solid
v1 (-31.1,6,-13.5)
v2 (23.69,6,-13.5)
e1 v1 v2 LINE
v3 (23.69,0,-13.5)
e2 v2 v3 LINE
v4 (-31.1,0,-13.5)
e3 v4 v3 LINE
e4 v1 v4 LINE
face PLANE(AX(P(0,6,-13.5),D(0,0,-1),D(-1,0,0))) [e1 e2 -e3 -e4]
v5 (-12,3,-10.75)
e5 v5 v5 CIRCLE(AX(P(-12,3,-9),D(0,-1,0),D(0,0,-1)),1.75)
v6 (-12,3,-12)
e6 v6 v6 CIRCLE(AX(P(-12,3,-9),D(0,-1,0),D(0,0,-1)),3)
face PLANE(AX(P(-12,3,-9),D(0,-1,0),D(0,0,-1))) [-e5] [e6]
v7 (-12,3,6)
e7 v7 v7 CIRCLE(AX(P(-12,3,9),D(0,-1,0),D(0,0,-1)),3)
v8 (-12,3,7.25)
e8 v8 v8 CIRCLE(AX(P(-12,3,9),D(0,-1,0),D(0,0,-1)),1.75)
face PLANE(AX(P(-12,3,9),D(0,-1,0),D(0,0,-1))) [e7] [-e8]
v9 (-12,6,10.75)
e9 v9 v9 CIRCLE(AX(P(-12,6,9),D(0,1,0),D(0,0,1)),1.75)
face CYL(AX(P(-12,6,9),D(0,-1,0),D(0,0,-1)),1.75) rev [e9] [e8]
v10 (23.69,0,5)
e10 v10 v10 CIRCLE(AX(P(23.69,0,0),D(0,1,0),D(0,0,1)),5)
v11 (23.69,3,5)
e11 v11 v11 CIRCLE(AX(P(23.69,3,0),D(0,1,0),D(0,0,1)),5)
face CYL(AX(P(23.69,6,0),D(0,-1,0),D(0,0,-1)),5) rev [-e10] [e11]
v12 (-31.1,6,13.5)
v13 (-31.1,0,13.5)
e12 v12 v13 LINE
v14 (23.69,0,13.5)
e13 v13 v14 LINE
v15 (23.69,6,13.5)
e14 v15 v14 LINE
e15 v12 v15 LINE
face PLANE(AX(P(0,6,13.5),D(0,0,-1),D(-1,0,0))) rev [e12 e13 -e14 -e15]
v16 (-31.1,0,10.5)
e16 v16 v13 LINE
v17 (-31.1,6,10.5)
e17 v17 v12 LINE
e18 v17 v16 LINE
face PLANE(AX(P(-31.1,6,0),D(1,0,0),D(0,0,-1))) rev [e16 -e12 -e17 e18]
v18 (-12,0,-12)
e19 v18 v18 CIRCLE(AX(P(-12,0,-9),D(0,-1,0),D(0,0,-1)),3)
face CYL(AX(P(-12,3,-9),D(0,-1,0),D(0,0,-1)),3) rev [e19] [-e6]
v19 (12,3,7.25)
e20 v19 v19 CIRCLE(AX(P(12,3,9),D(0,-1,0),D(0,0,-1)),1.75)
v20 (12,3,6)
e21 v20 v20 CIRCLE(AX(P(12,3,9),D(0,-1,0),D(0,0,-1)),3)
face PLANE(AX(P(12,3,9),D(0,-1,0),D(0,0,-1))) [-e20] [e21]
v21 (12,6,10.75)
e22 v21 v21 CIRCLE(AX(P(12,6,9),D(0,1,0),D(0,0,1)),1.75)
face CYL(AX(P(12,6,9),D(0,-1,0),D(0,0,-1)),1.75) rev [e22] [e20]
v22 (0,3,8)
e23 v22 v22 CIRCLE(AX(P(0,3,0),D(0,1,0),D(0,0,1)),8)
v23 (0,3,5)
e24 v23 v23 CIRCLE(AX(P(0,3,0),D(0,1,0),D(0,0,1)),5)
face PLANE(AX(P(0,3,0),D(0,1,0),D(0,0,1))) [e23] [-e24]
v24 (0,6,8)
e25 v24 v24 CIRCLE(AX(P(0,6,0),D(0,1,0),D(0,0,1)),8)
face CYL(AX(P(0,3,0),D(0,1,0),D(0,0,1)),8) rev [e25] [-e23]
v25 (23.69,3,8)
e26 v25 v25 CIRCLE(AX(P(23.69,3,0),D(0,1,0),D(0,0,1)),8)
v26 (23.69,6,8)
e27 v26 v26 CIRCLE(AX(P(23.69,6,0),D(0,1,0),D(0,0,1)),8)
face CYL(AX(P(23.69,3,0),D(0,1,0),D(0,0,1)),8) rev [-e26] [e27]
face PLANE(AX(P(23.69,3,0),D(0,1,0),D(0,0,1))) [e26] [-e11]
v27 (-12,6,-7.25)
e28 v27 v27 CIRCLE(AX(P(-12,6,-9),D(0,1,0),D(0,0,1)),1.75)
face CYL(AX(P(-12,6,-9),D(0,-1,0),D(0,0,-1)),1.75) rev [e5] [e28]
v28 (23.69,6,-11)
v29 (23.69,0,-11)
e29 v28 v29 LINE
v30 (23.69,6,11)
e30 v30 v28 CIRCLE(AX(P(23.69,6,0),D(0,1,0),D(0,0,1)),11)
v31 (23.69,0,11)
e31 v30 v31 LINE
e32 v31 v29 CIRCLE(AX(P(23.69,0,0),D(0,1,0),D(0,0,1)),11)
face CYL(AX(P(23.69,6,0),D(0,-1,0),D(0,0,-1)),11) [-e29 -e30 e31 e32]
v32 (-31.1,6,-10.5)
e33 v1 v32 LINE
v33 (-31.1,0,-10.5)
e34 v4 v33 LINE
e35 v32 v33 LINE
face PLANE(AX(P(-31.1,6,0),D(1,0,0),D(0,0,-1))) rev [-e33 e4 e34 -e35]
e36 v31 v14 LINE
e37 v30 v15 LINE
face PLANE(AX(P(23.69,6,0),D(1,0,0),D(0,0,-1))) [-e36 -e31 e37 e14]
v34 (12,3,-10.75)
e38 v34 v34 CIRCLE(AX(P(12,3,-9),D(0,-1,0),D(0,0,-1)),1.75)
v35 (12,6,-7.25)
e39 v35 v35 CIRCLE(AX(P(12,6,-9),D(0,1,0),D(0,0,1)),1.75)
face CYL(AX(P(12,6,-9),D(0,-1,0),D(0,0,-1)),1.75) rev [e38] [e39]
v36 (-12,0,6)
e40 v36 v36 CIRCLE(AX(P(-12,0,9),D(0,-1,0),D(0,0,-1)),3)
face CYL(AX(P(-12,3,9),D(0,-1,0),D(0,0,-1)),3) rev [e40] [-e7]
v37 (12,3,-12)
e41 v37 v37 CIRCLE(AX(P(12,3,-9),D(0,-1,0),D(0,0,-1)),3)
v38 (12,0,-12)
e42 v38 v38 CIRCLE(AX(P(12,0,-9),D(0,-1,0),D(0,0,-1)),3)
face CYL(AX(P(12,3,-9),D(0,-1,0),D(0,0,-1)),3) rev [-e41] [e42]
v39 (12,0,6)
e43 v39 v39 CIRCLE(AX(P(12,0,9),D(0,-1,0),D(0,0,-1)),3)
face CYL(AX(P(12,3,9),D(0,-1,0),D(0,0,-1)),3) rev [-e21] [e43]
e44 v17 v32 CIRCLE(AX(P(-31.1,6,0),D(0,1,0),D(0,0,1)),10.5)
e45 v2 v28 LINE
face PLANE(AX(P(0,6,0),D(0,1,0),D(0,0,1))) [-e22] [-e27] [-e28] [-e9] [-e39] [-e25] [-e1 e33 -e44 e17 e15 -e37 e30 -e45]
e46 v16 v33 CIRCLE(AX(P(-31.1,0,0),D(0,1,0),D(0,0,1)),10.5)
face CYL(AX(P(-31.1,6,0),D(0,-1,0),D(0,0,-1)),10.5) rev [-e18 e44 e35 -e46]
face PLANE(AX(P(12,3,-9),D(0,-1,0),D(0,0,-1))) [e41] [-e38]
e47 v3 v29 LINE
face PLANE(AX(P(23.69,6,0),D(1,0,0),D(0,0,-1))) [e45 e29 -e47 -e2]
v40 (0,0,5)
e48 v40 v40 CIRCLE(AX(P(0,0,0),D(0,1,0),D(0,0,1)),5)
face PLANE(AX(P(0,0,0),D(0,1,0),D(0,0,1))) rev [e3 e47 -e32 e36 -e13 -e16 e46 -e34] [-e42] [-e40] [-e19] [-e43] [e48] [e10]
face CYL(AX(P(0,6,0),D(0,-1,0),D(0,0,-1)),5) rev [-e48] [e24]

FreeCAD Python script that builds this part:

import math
import FreeCAD as App
import Part
import Sketcher

V = App.Vector

doc = App.newDocument("Part")
params = doc.addObject("Spreadsheet::Sheet", "Params")
for row, (alias, value) in enumerate([
    ("sketch1_diameter", "10 mm"),
    ("sketch1_radius", "11 mm"),
    ("sketch1_diameter2", "3.5 mm"),
    ("sketch1_radius2", "10.5 mm"),
    ("sketch1_height", "3 mm"),
    ("pad1_length", "6 mm"),
    ("sketch2_diameter", "6 mm"),
    ("sketch2_diameter2", "3.5 mm"),
    ("pocket1_length", "3 mm"),
    ("sketch3_diameter", "16 mm"),
    ("sketch3_diameter2", "10 mm"),
    ("pocket2_length", "3 mm"),
], start=1):
    params.set(f"A{row}", alias)
    params.set(f"B{row}", "=" + value)
    params.setAlias(f"B{row}", alias)

body = doc.addObject("PartDesign::Body", "Body")

sketch1 = body.newObject("Sketcher::SketchObject", "Sketch")
sketch1.AttachmentSupport = (doc.getObject("XZ_Plane"), [""])
sketch1.MapMode = "FlatFace"
sketch1.addGeometry(Part.LineSegment(V(23.7, -13.5, 0), V(-31.1, -13.5, 0)), False)
sketch1.addGeometry(Part.LineSegment(V(-31.1, -13.5, 0), V(-31.1, -10.5, 0)), False)
sketch1.addGeometry(Part.ArcOfCircle(Part.Circle(V(-31.1, 0, 0), V(0, 0, 1), 10.5), math.radians(-90), math.radians(90)), False)
sketch1.addGeometry(Part.LineSegment(V(-31.1, 10.5, 0), V(-31.1, 13.5, 0)), False)
sketch1.addGeometry(Part.LineSegment(V(-31.1, 13.5, 0), V(23.7, 13.5, 0)), False)
sketch1.addGeometry(Part.LineSegment(V(23.7, 13.5, 0), V(23.7, 11, 0)), False)
sketch1.addGeometry(Part.ArcOfCircle(Part.Circle(V(23.7, 0, 0), V(0, 0, 1), 11), math.radians(-90), math.radians(90)), False)
sketch1.addGeometry(Part.LineSegment(V(23.7, -11, 0), V(23.7, -13.5, 0)), False)
sketch1.addGeometry(Part.Circle(V(-12, 9, 0), V(0, 0, 1), 1.8), False)
sketch1.addGeometry(Part.Circle(V(12, 9, 0), V(0, 0, 1), 1.8), False)
sketch1.addGeometry(Part.Circle(V(0, 0, 0), V(0, 0, 1), 5), False)
sketch1.addGeometry(Part.Circle(V(-12, -9, 0), V(0, 0, 1), 1.8), False)
sketch1.addGeometry(Part.Circle(V(23.7, 0, 0), V(0, 0, 1), 5), False)
sketch1.addGeometry(Part.Circle(V(12, -9, 0), V(0, 0, 1), 1.8), False)
sketch1.addConstraint(Sketcher.Constraint("Coincident", 0, 2, 1, 1))
sketch1.addConstraint(Sketcher.Constraint("Coincident", 1, 2, 2, 1))
sketch1.addConstraint(Sketcher.Constraint("Coincident", 2, 2, 3, 1))
sketch1.addConstraint(Sketcher.Constraint("Coincident", 3, 2, 4, 1))
sketch1.addConstraint(Sketcher.Constraint("Coincident", 4, 2, 5, 1))
sketch1.addConstraint(Sketcher.Constraint("Coincident", 5, 2, 6, 2))
sketch1.addConstraint(Sketcher.Constraint("Coincident", 6, 1, 7, 1))
sketch1.addConstraint(Sketcher.Constraint("Coincident", 7, 2, 0, 1))
sketch1.addConstraint(Sketcher.Constraint("Horizontal", 0))
sketch1.addConstraint(Sketcher.Constraint("Vertical", 1))
sketch1.addConstraint(Sketcher.Constraint("Vertical", 3))
sketch1.addConstraint(Sketcher.Constraint("Horizontal", 4))
sketch1.addConstraint(Sketcher.Constraint("Vertical", 5))
sketch1.addConstraint(Sketcher.Constraint("Vertical", 7))
sketch1.addConstraint(Sketcher.Constraint("Coincident", 10, 3, -1, 1))
sketch1.addConstraint(Sketcher.Constraint("Coincident", 12, 3, 6, 3))
sketch1.addConstraint(Sketcher.Constraint("Equal", 8, 9))
sketch1.addConstraint(Sketcher.Constraint("Equal", 9, 11))
sketch1.addConstraint(Sketcher.Constraint("Equal", 10, 12))
sketch1.addConstraint(Sketcher.Constraint("Equal", 11, 13))
sketch1.addConstraint(Sketcher.Constraint("Symmetric", 9, 3, 11, 3, -1, 1))
sketch1.addConstraint(Sketcher.Constraint("Symmetric", 8, 3, 13, 3, -1, 1))
sketch1.addConstraint(Sketcher.Constraint("Symmetric", 8, 3, 9, 3, -2))
sketch1.addConstraint(Sketcher.Constraint("Symmetric", 1, 2, 2, 2, -1))
sketch1.addConstraint(Sketcher.Constraint("Symmetric", 5, 2, 6, 1, -1))
sketch1.addConstraint(Sketcher.Constraint("Vertical", 2, 3, 0, 2))
sketch1.addConstraint(Sketcher.Constraint("Vertical", 12, 3, 4, 2))
sketch1.addConstraint(Sketcher.Constraint("Equal", 1, 3))
sketch1.addConstraint(Sketcher.Constraint("Diameter", 10, 10.0))
sketch1.addConstraint(Sketcher.Constraint("Radius", 6, 11.0))
sketch1.addConstraint(Sketcher.Constraint("Diameter", 8, 3.5))
sketch1.addConstraint(Sketcher.Constraint("Radius", 2, 10.5))
sketch1.addConstraint(Sketcher.Constraint("DistanceY", 1, 1, 1, 2, 3.0))
sketch1.addConstraint(Sketcher.Constraint("DistanceX", 8, 3, -1, 1, 12.0))
sketch1.addConstraint(Sketcher.Constraint("DistanceY", -1, 1, 8, 3, 9.0))
sketch1.addConstraint(Sketcher.Constraint("DistanceX", 0, 2, 0, 1, 54.79))
sketch1.addConstraint(Sketcher.Constraint("DistanceX", 2, 3, -1, 1, 31.1))
sketch1.setExpression("Constraints[28]", "Params.sketch1_diameter")
sketch1.setExpression("Constraints[29]", "Params.sketch1_radius")
sketch1.setExpression("Constraints[30]", "Params.sketch1_diameter2")
sketch1.setExpression("Constraints[31]", "Params.sketch1_radius2")
sketch1.setExpression("Constraints[32]", "Params.sketch1_height")
pad1 = body.newObject("PartDesign::Pad", "Pad")
pad1.Profile = sketch1
pad1.setExpression("Length", "Params.pad1_length")
pad1.Reversed = True

sketch2 = body.newObject("Sketcher::SketchObject", "Sketch001")
sketch2.AttachmentSupport = (doc.getObject("XZ_Plane"), [""])
sketch2.MapMode = "FlatFace"
sketch2.addGeometry(Part.Circle(V(-12, -9, 0), V(0, 0, 1), 3), False)
sketch2.addGeometry(Part.Circle(V(-12, -9, 0), V(0, 0, 1), 1.8), False)
sketch2.addGeometry(Part.Circle(V(-12, 9, 0), V(0, 0, 1), 3), False)
sketch2.addGeometry(Part.Circle(V(-12, 9, 0), V(0, 0, 1), 1.8), False)
sketch2.addGeometry(Part.Circle(V(12, 9, 0), V(0, 0, 1), 3), False)
sketch2.addGeometry(Part.Circle(V(12, 9, 0), V(0, 0, 1), 1.8), False)
sketch2.addGeometry(Part.Circle(V(12, -9, 0), V(0, 0, 1), 3), False)
sketch2.addGeometry(Part.Circle(V(12, -9, 0), V(0, 0, 1), 1.8), False)
sketch2.addConstraint(Sketcher.Constraint("Coincident", 1, 3, 0, 3))
sketch2.addConstraint(Sketcher.Constraint("Coincident", 3, 3, 2, 3))
sketch2.addConstraint(Sketcher.Constraint("Coincident", 5, 3, 4, 3))
sketch2.addConstraint(Sketcher.Constraint("Coincident", 7, 3, 6, 3))
sketch2.addConstraint(Sketcher.Constraint("Equal", 0, 2))
sketch2.addConstraint(Sketcher.Constraint("Equal", 1, 3))
sketch2.addConstraint(Sketcher.Constraint("Equal", 2, 4))
sketch2.addConstraint(Sketcher.Constraint("Equal", 3, 5))
sketch2.addConstraint(Sketcher.Constraint("Equal", 4, 6))
sketch2.addConstraint(Sketcher.Constraint("Equal", 5, 7))
sketch2.addConstraint(Sketcher.Constraint("Symmetric", 0, 3, 4, 3, -1, 1))
sketch2.addConstraint(Sketcher.Constraint("Symmetric", 2, 3, 6, 3, -1, 1))
sketch2.addConstraint(Sketcher.Constraint("Symmetric", 2, 3, 4, 3, -2))
sketch2.addConstraint(Sketcher.Constraint("Diameter", 0, 6.0))
sketch2.addConstraint(Sketcher.Constraint("Diameter", 1, 3.5))
sketch2.addConstraint(Sketcher.Constraint("DistanceX", 0, 3, -1, 1, 12.0))
sketch2.addConstraint(Sketcher.Constraint("DistanceY", 0, 3, -1, 1, 9.0))
sketch2.setExpression("Constraints[13]", "Params.sketch2_diameter")
sketch2.setExpression("Constraints[14]", "Params.sketch2_diameter2")
pocket1 = body.newObject("PartDesign::Pocket", "Pocket")
pocket1.Profile = sketch2
pocket1.setExpression("Length", "Params.pocket1_length")

sketch3 = body.newObject("Sketcher::SketchObject", "Sketch002")
sketch3.AttachmentSupport = (doc.getObject("XZ_Plane"), [""])
sketch3.MapMode = "FlatFace"
sketch3.AttachmentOffset = App.Placement(V(0, 0, -3), App.Rotation())
sketch3.addGeometry(Part.Circle(V(0, 0, 0), V(0, 0, 1), 8), False)
sketch3.addGeometry(Part.Circle(V(0, 0, 0), V(0, 0, 1), 5), False)
sketch3.addGeometry(Part.Circle(V(24, 0, 0), V(0, 0, 1), 8), False)
sketch3.addGeometry(Part.Circle(V(24, 0, 0), V(0, 0, 1), 5), False)
sketch3.addConstraint(Sketcher.Constraint("Coincident", 0, 3, -1, 1))
sketch3.addConstraint(Sketcher.Constraint("Coincident", 1, 3, -1, 1))
sketch3.addConstraint(Sketcher.Constraint("Coincident", 3, 3, 2, 3))
sketch3.addConstraint(Sketcher.Constraint("Equal", 0, 2))
sketch3.addConstraint(Sketcher.Constraint("Equal", 1, 3))
sketch3.addConstraint(Sketcher.Constraint("PointOnObject", 2, 3, -1))
sketch3.addConstraint(Sketcher.Constraint("Diameter", 0, 16.0))
sketch3.addConstraint(Sketcher.Constraint("Diameter", 1, 10.0))
sketch3.addConstraint(Sketcher.Constraint("DistanceX", -1, 1, 2, 3, 23.69))
sketch3.setExpression("Constraints[6]", "Params.sketch3_diameter")
sketch3.setExpression("Constraints[7]", "Params.sketch3_diameter2")
pocket2 = body.newObject("PartDesign::Pocket", "Pocket001")
pocket2.Profile = sketch3
pocket2.setExpression("Length", "Params.pocket2_length")

doc.recompute()
